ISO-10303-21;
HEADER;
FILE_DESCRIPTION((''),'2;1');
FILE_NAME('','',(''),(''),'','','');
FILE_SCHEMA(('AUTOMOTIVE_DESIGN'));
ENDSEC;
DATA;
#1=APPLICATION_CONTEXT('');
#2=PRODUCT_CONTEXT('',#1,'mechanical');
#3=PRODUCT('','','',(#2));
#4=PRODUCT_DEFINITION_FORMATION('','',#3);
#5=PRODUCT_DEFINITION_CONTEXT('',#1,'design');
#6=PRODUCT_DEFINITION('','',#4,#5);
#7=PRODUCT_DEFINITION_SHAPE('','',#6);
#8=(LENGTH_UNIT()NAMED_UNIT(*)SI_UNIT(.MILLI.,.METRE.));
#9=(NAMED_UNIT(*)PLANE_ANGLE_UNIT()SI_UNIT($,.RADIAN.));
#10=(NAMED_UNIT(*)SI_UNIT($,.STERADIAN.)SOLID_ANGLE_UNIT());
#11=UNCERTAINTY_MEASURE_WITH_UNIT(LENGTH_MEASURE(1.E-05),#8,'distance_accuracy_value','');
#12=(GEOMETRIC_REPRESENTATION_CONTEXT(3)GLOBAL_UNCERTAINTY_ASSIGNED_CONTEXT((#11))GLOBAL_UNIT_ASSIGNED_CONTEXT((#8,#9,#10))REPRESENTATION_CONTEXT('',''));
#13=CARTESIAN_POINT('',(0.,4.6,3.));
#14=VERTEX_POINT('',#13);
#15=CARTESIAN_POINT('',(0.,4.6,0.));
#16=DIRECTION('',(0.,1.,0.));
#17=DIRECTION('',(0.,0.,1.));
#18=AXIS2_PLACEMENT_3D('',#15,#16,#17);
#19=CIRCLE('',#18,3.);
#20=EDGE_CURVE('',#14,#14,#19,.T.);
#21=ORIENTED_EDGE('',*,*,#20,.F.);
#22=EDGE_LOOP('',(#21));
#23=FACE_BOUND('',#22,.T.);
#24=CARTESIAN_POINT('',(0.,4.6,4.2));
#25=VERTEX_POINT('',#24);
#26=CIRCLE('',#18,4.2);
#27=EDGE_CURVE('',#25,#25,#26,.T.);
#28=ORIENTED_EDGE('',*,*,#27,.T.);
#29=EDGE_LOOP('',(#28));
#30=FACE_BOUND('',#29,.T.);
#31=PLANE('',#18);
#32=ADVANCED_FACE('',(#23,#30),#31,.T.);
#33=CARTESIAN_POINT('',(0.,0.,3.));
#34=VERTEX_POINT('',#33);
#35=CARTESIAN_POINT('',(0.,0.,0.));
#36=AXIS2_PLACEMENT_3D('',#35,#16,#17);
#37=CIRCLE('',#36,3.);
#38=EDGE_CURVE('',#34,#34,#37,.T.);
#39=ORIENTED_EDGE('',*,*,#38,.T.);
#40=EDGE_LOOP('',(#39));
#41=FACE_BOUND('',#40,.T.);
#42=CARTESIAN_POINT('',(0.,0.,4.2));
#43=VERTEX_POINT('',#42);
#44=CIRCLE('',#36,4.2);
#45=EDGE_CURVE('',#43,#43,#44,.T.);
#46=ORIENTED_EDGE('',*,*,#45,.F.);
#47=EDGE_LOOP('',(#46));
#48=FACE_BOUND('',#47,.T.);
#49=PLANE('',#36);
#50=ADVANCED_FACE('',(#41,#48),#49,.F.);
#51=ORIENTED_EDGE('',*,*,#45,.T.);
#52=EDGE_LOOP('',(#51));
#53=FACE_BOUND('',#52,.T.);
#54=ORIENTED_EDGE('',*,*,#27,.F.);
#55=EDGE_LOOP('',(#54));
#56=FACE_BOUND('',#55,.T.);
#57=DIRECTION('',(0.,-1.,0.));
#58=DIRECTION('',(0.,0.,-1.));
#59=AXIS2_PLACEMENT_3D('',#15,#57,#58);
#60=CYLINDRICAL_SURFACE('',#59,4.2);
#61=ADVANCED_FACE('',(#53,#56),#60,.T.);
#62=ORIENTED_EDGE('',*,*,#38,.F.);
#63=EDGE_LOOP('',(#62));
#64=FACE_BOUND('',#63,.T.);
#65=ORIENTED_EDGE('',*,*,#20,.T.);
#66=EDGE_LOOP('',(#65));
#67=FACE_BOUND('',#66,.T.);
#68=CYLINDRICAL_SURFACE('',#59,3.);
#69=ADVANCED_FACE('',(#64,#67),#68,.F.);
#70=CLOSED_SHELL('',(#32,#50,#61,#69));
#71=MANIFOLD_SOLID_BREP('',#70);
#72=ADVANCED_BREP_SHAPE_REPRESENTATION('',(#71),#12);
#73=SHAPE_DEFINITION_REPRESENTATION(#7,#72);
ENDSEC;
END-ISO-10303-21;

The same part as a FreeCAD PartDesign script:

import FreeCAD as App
import Part
import Sketcher
from FreeCAD import Vector

doc = App.newDocument("Part")
body = doc.addObject("PartDesign::Body", "Body")

sketch1 = body.newObject("Sketcher::SketchObject", "Sketch")
sketch1.AttachmentSupport = (doc.getObject("XZ_Plane"), [""])
sketch1.MapMode = "FlatFace"
sketch1.addGeometry([
    Part.Circle(Vector(0, 0, 0), Vector(0, 0, 1), 4.2),
    Part.Circle(Vector(0, 0, 0), Vector(0, 0, 1), 3),
], False)
sketch1.addConstraint([
    Sketcher.Constraint("Coincident", 0, 3, -1, 1),
    Sketcher.Constraint("Coincident", 1, 3, -1, 1),
    Sketcher.Constraint("Diameter", 1, 6.0),
    Sketcher.Constraint("Diameter", 0, 8.4),
])
pad1 = body.newObject("PartDesign::Pad", "Pad")
pad1.Profile = sketch1
pad1.Length = 4.6
pad1.Reversed = True

doc.recompute()
